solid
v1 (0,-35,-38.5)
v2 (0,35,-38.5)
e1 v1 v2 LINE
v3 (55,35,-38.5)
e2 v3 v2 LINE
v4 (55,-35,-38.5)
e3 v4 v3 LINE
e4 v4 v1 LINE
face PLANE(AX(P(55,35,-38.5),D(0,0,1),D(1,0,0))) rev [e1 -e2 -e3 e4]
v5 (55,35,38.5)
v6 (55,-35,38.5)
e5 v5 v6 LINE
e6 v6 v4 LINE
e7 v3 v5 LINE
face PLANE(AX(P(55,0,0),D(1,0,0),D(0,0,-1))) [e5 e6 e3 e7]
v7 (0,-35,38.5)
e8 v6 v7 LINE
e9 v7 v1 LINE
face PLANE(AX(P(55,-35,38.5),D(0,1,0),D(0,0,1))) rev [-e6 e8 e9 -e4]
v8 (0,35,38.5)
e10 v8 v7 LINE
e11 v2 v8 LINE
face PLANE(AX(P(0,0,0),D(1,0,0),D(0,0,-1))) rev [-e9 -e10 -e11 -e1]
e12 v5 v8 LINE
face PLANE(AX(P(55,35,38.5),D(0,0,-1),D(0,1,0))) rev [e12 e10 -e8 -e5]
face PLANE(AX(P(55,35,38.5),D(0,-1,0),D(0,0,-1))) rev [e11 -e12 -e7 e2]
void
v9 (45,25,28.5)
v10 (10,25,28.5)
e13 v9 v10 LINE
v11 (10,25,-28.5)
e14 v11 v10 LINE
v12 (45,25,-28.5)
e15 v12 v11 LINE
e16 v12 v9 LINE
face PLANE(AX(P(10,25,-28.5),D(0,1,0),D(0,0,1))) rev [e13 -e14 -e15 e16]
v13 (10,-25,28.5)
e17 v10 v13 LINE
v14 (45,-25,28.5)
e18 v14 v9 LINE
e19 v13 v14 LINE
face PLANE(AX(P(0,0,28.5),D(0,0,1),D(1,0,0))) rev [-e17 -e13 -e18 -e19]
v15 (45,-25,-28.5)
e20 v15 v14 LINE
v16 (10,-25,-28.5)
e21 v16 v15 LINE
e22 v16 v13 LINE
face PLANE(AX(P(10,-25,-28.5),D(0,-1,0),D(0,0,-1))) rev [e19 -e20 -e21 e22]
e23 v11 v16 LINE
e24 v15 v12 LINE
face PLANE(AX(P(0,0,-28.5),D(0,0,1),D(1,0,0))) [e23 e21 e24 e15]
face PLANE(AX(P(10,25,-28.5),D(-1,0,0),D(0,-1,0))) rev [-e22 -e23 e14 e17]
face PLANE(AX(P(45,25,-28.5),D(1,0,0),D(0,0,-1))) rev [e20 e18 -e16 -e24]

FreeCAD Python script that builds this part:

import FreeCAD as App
import Part
import Sketcher
from FreeCAD import Vector

doc = App.newDocument("Part")
params = doc.addObject("Spreadsheet::Sheet", "Params")
for row, (alias, value) in enumerate([
    ("sketch1_width", "70 mm"),
    ("sketch1_height", "77 mm"),
    ("pad1_length", "55 mm"),
    ("sketch2_width", "35 mm"),
    ("sketch2_height", "50 mm"),
    ("pocket1_length", "57 mm"),
], start=1):
    params.set(f"A{row}", alias)
    params.set(f"B{row}", "=" + value)
    params.setAlias(f"B{row}", alias)

body = doc.addObject("PartDesign::Body", "Body")

# Sketch on YZ plane
sketch1 = body.newObject("Sketcher::SketchObject", "Sketch")
sketch1.AttachmentSupport = (doc.getObject("YZ_Plane"), [""])
sketch1.MapMode = "FlatFace"
sketch1.addGeometry([
    Part.LineSegment(Vector(35, 38.5, 0), Vector(-35, 38.5, 0)),
    Part.LineSegment(Vector(-35, 38.5, 0), Vector(-35, -38.5, 0)),
    Part.LineSegment(Vector(-35, -38.5, 0), Vector(35, -38.5, 0)),
    Part.LineSegment(Vector(35, -38.5, 0), Vector(35, 38.5, 0)),
], False)
sketch1.addConstraint([
    Sketcher.Constraint("Coincident", 0, 2, 1, 1),
    Sketcher.Constraint("Coincident", 1, 2, 2, 1),
    Sketcher.Constraint("Coincident", 2, 2, 3, 1),
    Sketcher.Constraint("Coincident", 3, 2, 0, 1),
    Sketcher.Constraint("Horizontal", 0),
    Sketcher.Constraint("Vertical", 1),
    Sketcher.Constraint("Horizontal", 2),
    Sketcher.Constraint("Vertical", 3),
    Sketcher.Constraint("Symmetric", 0, 2, 2, 2, -1, 1),
    Sketcher.Constraint("DistanceX", 0, 2, 0, 1, 70.0),
    Sketcher.Constraint("DistanceY", 1, 2, 1, 1, 77.0),
])
sketch1.setExpression("Constraints[9]", "Params.sketch1_width")
sketch1.setExpression("Constraints[10]", "Params.sketch1_height")
pad1 = body.newObject("PartDesign::Pad", "Pad")
pad1.Profile = sketch1
pad1.setExpression("Length", "Params.pad1_length")

# Sketch on XY plane
sketch2 = body.newObject("Sketcher::SketchObject", "Sketch001")
sketch2.AttachmentSupport = (doc.getObject("XY_Plane"), [""])
sketch2.MapMode = "FlatFace"
sketch2.AttachmentOffset = App.Placement(Vector(0, 0, 28.5), App.Rotation())
sketch2.addGeometry([
    Part.LineSegment(Vector(10, 25, 0), Vector(10, -25, 0)),
    Part.LineSegment(Vector(10, -25, 0), Vector(45, -25, 0)),
    Part.LineSegment(Vector(45, -25, 0), Vector(45, 25, 0)),
    Part.LineSegment(Vector(45, 25, 0), Vector(10, 25, 0)),
], False)
sketch2.addConstraint([
    Sketcher.Constraint("Coincident", 0, 2, 1, 1),
    Sketcher.Constraint("Coincident", 1, 2, 2, 1),
    Sketcher.Constraint("Coincident", 2, 2, 3, 1),
    Sketcher.Constraint("Coincident", 3, 2, 0, 1),
    Sketcher.Constraint("Vertical", 0),
    Sketcher.Constraint("Horizontal", 1),
    Sketcher.Constraint("Vertical", 2),
    Sketcher.Constraint("Horizontal", 3),
    Sketcher.Constraint("DistanceX", 1, 1, 1, 2, 35.0),
    Sketcher.Constraint("DistanceY", 0, 2, 0, 1, 50.0),
    Sketcher.Constraint("DistanceX", -1, 1, 0, 2, 10.0),
    Sketcher.Constraint("DistanceY", 0, 2, -1, 1, 25.0),
])
sketch2.setExpression("Constraints[8]", "Params.sketch2_width")
sketch2.setExpression("Constraints[9]", "Params.sketch2_height")
pocket1 = body.newObject("PartDesign::Pocket", "Pocket")
pocket1.Profile = sketch2
pocket1.setExpression("Length", "Params.pocket1_length")

doc.recompute()
